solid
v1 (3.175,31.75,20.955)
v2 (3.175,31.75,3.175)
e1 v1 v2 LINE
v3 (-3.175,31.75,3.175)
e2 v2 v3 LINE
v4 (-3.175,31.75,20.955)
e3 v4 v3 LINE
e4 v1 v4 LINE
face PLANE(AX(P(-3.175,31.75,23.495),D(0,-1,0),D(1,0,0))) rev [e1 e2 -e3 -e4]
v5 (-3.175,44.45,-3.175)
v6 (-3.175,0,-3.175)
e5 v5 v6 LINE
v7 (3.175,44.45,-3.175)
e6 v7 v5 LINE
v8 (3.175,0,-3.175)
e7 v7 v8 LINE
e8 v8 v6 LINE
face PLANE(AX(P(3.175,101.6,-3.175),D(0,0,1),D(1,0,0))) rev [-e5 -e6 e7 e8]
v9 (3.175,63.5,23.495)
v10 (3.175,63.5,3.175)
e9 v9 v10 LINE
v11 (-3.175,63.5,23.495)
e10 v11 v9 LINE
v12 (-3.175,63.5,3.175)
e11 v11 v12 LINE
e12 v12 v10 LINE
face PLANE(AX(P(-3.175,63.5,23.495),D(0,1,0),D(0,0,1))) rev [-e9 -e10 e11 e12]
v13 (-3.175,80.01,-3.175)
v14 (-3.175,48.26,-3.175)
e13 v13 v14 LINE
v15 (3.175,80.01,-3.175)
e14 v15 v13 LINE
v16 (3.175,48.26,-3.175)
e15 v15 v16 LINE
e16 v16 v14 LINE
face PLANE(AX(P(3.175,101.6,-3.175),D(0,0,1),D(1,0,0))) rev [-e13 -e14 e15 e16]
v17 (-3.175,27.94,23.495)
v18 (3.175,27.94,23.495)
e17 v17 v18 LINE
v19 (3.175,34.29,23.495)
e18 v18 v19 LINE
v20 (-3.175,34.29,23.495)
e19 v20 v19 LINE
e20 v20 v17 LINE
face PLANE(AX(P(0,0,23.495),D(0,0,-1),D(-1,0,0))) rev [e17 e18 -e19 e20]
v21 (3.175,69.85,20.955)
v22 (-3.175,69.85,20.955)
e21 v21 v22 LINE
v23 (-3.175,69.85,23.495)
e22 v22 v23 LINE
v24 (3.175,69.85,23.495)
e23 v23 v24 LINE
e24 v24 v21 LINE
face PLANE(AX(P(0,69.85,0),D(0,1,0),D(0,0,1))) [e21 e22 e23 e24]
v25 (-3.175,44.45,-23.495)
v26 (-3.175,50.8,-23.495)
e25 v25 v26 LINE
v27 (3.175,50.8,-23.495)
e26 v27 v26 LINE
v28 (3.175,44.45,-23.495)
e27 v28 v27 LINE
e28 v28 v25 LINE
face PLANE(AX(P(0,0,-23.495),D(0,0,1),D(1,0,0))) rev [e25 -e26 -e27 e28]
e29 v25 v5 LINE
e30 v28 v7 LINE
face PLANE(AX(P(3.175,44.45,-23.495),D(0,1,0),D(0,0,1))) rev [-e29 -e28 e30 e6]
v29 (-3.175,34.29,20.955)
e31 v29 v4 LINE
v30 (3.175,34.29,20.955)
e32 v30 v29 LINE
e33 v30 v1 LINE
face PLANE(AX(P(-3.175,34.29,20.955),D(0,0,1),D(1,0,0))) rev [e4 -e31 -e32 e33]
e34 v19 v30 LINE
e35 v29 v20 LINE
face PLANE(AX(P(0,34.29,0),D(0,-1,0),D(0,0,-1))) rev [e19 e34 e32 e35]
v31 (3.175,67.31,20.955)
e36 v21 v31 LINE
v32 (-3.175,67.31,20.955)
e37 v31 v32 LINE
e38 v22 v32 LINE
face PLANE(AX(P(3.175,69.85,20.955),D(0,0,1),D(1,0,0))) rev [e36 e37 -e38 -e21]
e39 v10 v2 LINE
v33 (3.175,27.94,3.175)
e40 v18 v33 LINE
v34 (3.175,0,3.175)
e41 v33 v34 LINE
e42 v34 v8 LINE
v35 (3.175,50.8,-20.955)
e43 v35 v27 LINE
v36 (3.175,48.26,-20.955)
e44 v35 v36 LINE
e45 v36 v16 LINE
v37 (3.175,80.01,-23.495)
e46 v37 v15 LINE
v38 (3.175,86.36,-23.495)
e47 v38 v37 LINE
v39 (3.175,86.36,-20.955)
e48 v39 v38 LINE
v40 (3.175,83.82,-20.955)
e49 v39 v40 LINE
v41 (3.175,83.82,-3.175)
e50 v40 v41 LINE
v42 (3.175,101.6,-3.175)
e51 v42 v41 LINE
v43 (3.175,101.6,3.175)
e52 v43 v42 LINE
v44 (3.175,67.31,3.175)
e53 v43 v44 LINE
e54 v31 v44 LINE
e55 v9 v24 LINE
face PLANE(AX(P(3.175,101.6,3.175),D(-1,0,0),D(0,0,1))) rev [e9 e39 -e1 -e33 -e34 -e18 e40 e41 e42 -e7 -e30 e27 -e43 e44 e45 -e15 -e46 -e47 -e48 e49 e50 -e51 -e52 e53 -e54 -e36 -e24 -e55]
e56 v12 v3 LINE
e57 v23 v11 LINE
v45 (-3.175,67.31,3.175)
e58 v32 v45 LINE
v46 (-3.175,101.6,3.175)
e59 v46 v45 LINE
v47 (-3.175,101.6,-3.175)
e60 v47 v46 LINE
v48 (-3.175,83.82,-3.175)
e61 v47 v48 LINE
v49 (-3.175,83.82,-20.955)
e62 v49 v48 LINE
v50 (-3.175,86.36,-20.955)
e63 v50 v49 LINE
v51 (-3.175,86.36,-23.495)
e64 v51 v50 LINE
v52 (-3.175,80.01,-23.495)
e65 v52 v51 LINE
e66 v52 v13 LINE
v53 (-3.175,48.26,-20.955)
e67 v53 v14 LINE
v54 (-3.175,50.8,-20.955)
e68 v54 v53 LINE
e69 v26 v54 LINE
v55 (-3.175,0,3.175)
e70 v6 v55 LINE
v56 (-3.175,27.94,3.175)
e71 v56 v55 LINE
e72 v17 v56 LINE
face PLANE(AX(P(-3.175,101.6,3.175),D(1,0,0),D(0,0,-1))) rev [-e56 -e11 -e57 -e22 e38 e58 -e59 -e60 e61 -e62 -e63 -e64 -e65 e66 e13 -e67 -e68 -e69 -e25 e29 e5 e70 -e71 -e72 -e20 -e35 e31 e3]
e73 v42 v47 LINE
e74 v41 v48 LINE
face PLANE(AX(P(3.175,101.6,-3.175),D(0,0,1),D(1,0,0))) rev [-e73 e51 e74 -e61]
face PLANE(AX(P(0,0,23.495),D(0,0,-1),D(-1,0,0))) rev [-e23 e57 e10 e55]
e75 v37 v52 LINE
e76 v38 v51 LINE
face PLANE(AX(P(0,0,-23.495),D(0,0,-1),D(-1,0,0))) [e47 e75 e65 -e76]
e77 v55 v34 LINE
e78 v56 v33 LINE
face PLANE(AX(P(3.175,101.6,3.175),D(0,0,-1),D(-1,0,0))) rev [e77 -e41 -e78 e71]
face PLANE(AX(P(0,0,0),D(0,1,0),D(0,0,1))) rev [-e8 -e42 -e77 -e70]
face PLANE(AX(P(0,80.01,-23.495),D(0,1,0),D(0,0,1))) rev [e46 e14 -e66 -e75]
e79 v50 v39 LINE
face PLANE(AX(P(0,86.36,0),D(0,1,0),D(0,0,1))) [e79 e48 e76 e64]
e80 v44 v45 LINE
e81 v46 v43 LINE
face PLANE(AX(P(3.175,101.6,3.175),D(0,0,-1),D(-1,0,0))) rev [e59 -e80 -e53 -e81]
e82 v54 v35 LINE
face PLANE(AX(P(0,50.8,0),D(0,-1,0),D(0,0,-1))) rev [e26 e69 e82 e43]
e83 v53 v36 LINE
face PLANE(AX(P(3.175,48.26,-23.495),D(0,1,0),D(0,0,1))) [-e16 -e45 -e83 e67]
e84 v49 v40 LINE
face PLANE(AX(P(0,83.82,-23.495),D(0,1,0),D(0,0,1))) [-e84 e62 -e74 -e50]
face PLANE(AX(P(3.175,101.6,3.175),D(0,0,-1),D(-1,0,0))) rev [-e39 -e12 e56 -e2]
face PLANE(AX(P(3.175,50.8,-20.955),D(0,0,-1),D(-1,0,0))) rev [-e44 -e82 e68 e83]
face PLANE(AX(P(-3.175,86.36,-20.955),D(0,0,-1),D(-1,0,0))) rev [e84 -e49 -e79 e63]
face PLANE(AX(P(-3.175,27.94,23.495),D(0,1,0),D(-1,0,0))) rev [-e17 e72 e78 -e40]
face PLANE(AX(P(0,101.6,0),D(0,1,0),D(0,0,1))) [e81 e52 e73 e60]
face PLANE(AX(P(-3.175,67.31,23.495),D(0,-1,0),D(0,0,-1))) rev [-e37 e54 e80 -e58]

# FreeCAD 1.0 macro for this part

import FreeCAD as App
import Part
import Sketcher

V = App.Vector
Q = App.Units.Quantity

doc = App.newDocument("Part")
body = doc.addObject("PartDesign::Body", "Body")

sketch1 = body.newObject("Sketcher::SketchObject", "Sketch")
sketch1.AttachmentSupport = (doc.getObject("XZ_Plane"), [""])
sketch1.MapMode = "FlatFace"
sketch1.addGeometry(Part.LineSegment(V(-3, -3, 0), V(-3, 3, 0)), False)
sketch1.addGeometry(Part.LineSegment(V(-3, 3, 0), V(3, 3, 0)), False)
sketch1.addGeometry(Part.LineSegment(V(3, 3, 0), V(3, -3, 0)), False)
sketch1.addGeometry(Part.LineSegment(V(3, -3, 0), V(-3, -3, 0)), False)
sketch1.addConstraint(Sketcher.Constraint("Coincident", 0, 2, 1, 1))
sketch1.addConstraint(Sketcher.Constraint("Coincident", 1, 2, 2, 1))
sketch1.addConstraint(Sketcher.Constraint("Coincident", 2, 2, 3, 1))
sketch1.addConstraint(Sketcher.Constraint("Coincident", 3, 2, 0, 1))
sketch1.addConstraint(Sketcher.Constraint("Vertical", 0))
sketch1.addConstraint(Sketcher.Constraint("Horizontal", 1))
sketch1.addConstraint(Sketcher.Constraint("Vertical", 2))
sketch1.addConstraint(Sketcher.Constraint("Horizontal", 3))
sketch1.addConstraint(Sketcher.Constraint("Symmetric", 0, 2, 2, 2, -1, 1))
sketch1.addConstraint(Sketcher.Constraint("Equal", 3, 0))
sketch1.addConstraint(Sketcher.Constraint("DistanceX", 1, 1, 1, 2, Q("0.25 in")))
pad1 = body.newObject("PartDesign::Pad", "Pad")
pad1.Profile = sketch1
pad1.Length = Q("4 in")
pad1.Reversed = True

sketch2 = body.newObject("Sketcher::SketchObject", "Sketch001")
sketch2.AttachmentSupport = (doc.getObject("XY_Plane"), [""])
sketch2.MapMode = "FlatFace"
sketch2.AttachmentOffset = App.Placement(V(0, 0, 0.125 * 25.4), App.Rotation())
sketch2.addGeometry(Part.LineSegment(V(-3.2, 31.8, 0), V(-3.2, 27.9, 0)), False)
sketch2.addGeometry(Part.LineSegment(V(-3.2, 27.9, 0), V(3.2, 27.9, 0)), False)
sketch2.addGeometry(Part.LineSegment(V(3.2, 27.9, 0), V(3.2, 31.8, 0)), False)
sketch2.addGeometry(Part.LineSegment(V(3.2, 31.8, 0), V(-3.2, 31.8, 0)), False)
sketch2.addGeometry(Part.LineSegment(V(-3.2, 67.3, 0), V(-3.2, 63.5, 0)), False)
sketch2.addGeometry(Part.LineSegment(V(-3.2, 63.5, 0), V(3.2, 63.5, 0)), False)
sketch2.addGeometry(Part.LineSegment(V(3.2, 63.5, 0), V(3.2, 67.3, 0)), False)
sketch2.addGeometry(Part.LineSegment(V(3.2, 67.3, 0), V(-3.2, 67.3, 0)), False)
sketch2.addConstraint(Sketcher.Constraint("Coincident", 0, 2, 1, 1))
sketch2.addConstraint(Sketcher.Constraint("Coincident", 1, 2, 2, 1))
sketch2.addConstraint(Sketcher.Constraint("Coincident", 2, 2, 3, 1))
sketch2.addConstraint(Sketcher.Constraint("Coincident", 3, 2, 0, 1))
sketch2.addConstraint(Sketcher.Constraint("Coincident", 4, 2, 5, 1))
sketch2.addConstraint(Sketcher.Constraint("Coincident", 5, 2, 6, 1))
sketch2.addConstraint(Sketcher.Constraint("Coincident", 6, 2, 7, 1))
sketch2.addConstraint(Sketcher.Constraint("Coincident", 7, 2, 4, 1))
sketch2.addConstraint(Sketcher.Constraint("Vertical", 0))
sketch2.addConstraint(Sketcher.Constraint("Horizontal", 1))
sketch2.addConstraint(Sketcher.Constraint("Vertical", 2))
sketch2.addConstraint(Sketcher.Constraint("Horizontal", 3))
sketch2.addConstraint(Sketcher.Constraint("Vertical", 4))
sketch2.addConstraint(Sketcher.Constraint("Horizontal", 5))
sketch2.addConstraint(Sketcher.Constraint("Vertical", 6))
sketch2.addConstraint(Sketcher.Constraint("Horizontal", 7))
sketch2.addConstraint(Sketcher.Constraint("Vertical", 3, 2, 4, 2))
sketch2.addConstraint(Sketcher.Constraint("Vertical", 2, 2, 5, 2))
sketch2.addConstraint(Sketcher.Constraint("Equal", 2, 4))
sketch2.addConstraint(Sketcher.Constraint("DistanceX", 1, 1, 1, 2, Q("0.25 in")))
sketch2.addConstraint(Sketcher.Constraint("DistanceY", 0, 2, 0, 1, Q("0.15 in")))
sketch2.addConstraint(Sketcher.Constraint("DistanceY", -1, 1, 0, 2, Q("1.1 in")))
sketch2.addConstraint(Sketcher.Constraint("DistanceY", -1, 1, 4, 2, Q("2.5 in")))
sketch2.addConstraint(Sketcher.Constraint("DistanceX", 0, 2, -1, 1, Q("0.125 in")))
pad2 = body.newObject("PartDesign::Pad", "Pad001")
pad2.Profile = sketch2
pad2.Length = Q("0.8 in")

sketch3 = body.newObject("Sketcher::SketchObject", "Sketch002")
sketch3.AttachmentSupport = (doc.getObject("XZ_Plane"), [""])
sketch3.MapMode = "FlatFace"
sketch3.AttachmentOffset = App.Placement(V(0, 0, -1.25 * 25.4), App.Rotation())
sketch3.addGeometry(Part.LineSegment(V(-3.2, 21, 0), V(-3.2, 23.5, 0)), False)
sketch3.addGeometry(Part.LineSegment(V(-3.2, 23.5, 0), V(3.2, 23.5, 0)), False)
sketch3.addGeometry(Part.LineSegment(V(3.2, 23.5, 0), V(3.2, 21, 0)), False)
sketch3.addGeometry(Part.LineSegment(V(3.2, 21, 0), V(-3.2, 21, 0)), False)
sketch3.addConstraint(Sketcher.Constraint("Coincident", 0, 2, 1, 1))
sketch3.addConstraint(Sketcher.Constraint("Coincident", 1, 2, 2, 1))
sketch3.addConstraint(Sketcher.Constraint("Coincident", 2, 2, 3, 1))
sketch3.addConstraint(Sketcher.Constraint("Coincident", 3, 2, 0, 1))
sketch3.addConstraint(Sketcher.Constraint("Vertical", 0))
sketch3.addConstraint(Sketcher.Constraint("Horizontal", 1))
sketch3.addConstraint(Sketcher.Constraint("Vertical", 2))
sketch3.addConstraint(Sketcher.Constraint("Horizontal", 3))
sketch3.addConstraint(Sketcher.Constraint("DistanceY", 0, 1, 0, 2, Q("0.1 in")))
sketch3.addConstraint(Sketcher.Constraint("DistanceX", 1, 1, 1, 2, Q("0.25 in")))
sketch3.addConstraint(Sketcher.Constraint("DistanceX", 0, 2, -1, 1, Q("0.125 in")))
sketch3.addConstraint(Sketcher.Constraint("DistanceY", -1, 1, 0, 2, Q("0.925 in")))
pad3 = body.newObject("PartDesign::Pad", "Pad002")
pad3.Profile = sketch3
pad3.Length = Q("0.1 in")
pad3.Reversed = True

sketch4 = body.newObject("Sketcher::SketchObject", "Sketch003")
sketch4.AttachmentSupport = (doc.getObject("XY_Plane"), [""])
sketch4.MapMode = "FlatFace"
sketch4.AttachmentOffset = App.Placement(V(0, 0, -0.125 * 25.4), App.Rotation())
sketch4.addGeometry(Part.LineSegment(V(3.2, 83.8, 0), V(3.2, 80, 0)), False)
sketch4.addGeometry(Part.LineSegment(V(3.2, 80, 0), V(-3.2, 80, 0)), False)
sketch4.addGeometry(Part.LineSegment(V(-3.2, 80, 0), V(-3.2, 83.8, 0)), False)
sketch4.addGeometry(Part.LineSegment(V(-3.2, 83.8, 0), V(3.2, 83.8, 0)), False)
sketch4.addGeometry(Part.LineSegment(V(3.2, 48.3, 0), V(3.2, 44.5, 0)), False)
sketch4.addGeometry(Part.LineSegment(V(3.2, 44.5, 0), V(-3.2, 44.5, 0)), False)
sketch4.addGeometry(Part.LineSegment(V(-3.2, 44.5, 0), V(-3.2, 48.3, 0)), False)
sketch4.addGeometry(Part.LineSegment(V(-3.2, 48.3, 0), V(3.2, 48.3, 0)), False)
sketch4.addConstraint(Sketcher.Constraint("Coincident", 0, 2, 1, 1))
sketch4.addConstraint(Sketcher.Constraint("Coincident", 1, 2, 2, 1))
sketch4.addConstraint(Sketcher.Constraint("Coincident", 2, 2, 3, 1))
sketch4.addConstraint(Sketcher.Constraint("Coincident", 3, 2, 0, 1))
sketch4.addConstraint(Sketcher.Constraint("Coincident", 4, 2, 5, 1))
sketch4.addConstraint(Sketcher.Constraint("Coincident", 5, 2, 6, 1))
sketch4.addConstraint(Sketcher.Constraint("Coincident", 6, 2, 7, 1))
sketch4.addConstraint(Sketcher.Constraint("Coincident", 7, 2, 4, 1))
sketch4.addConstraint(Sketcher.Constraint("Vertical", 0))
sketch4.addConstraint(Sketcher.Constraint("Horizontal", 1))
sketch4.addConstraint(Sketcher.Constraint("Vertical", 2))
sketch4.addConstraint(Sketcher.Constraint("Horizontal", 3))
sketch4.addConstraint(Sketcher.Constraint("Vertical", 4))
sketch4.addConstraint(Sketcher.Constraint("Horizontal", 5))
sketch4.addConstraint(Sketcher.Constraint("Vertical", 6))
sketch4.addConstraint(Sketcher.Constraint("Horizontal", 7))
sketch4.addConstraint(Sketcher.Constraint("Vertical", 3, 2, 4, 2))
sketch4.addConstraint(Sketcher.Constraint("Vertical", 2, 2, 5, 2))
sketch4.addConstraint(Sketcher.Constraint("Equal", 2, 4))
sketch4.addConstraint(Sketcher.Constraint("DistanceX", 1, 2, 1, 1, Q("0.25 in")))
sketch4.addConstraint(Sketcher.Constraint("DistanceY", 0, 2, 0, 1, Q("0.15 in")))
sketch4.addConstraint(Sketcher.Constraint("DistanceY", -1, 1, 2, 2, Q("3.3 in")))
sketch4.addConstraint(Sketcher.Constraint("DistanceY", -1, 1, 6, 2, Q("1.9 in")))
sketch4.addConstraint(Sketcher.Constraint("DistanceX", -1, 1, 0, 2, Q("0.125 in")))
pad4 = body.newObject("PartDesign::Pad", "Pad003")
pad4.Profile = sketch4
pad4.Length = Q("0.8 in")
pad4.Reversed = True

sketch5 = body.newObject("Sketcher::SketchObject", "Sketch004")
sketch5.AttachmentSupport = (doc.getObject("XZ_Plane"), [""])
sketch5.MapMode = "FlatFace"
sketch5.AttachmentOffset = App.Placement(V(0, 0, -1.9 * 25.4), App.Rotation())
sketch5.addGeometry(Part.LineSegment(V(-3.2, -23.5, 0), V(-3.2, -21, 0)), False)
sketch5.addGeometry(Part.LineSegment(V(-3.2, -21, 0), V(3.2, -21, 0)), False)
sketch5.addGeometry(Part.LineSegment(V(3.2, -21, 0), V(3.2, -23.5, 0)), False)
sketch5.addGeometry(Part.LineSegment(V(3.2, -23.5, 0), V(-3.2, -23.5, 0)), False)
sketch5.addConstraint(Sketcher.Constraint("Coincident", 0, 2, 1, 1))
sketch5.addConstraint(Sketcher.Constraint("Coincident", 1, 2, 2, 1))
sketch5.addConstraint(Sketcher.Constraint("Coincident", 2, 2, 3, 1))
sketch5.addConstraint(Sketcher.Constraint("Coincident", 3, 2, 0, 1))
sketch5.addConstraint(Sketcher.Constraint("Vertical", 0))
sketch5.addConstraint(Sketcher.Constraint("Horizontal", 1))
sketch5.addConstraint(Sketcher.Constraint("Vertical", 2))
sketch5.addConstraint(Sketcher.Constraint("Horizontal", 3))
sketch5.addConstraint(Sketcher.Constraint("DistanceY", 0, 1, 0, 2, Q("0.1 in")))
sketch5.addConstraint(Sketcher.Constraint("DistanceX", 1, 1, 1, 2, Q("0.25 in")))
sketch5.addConstraint(Sketcher.Constraint("DistanceX", 0, 2, -1, 1, Q("0.125 in")))
sketch5.addConstraint(Sketcher.Constraint("DistanceY", 0, 2, -1, 1, Q("0.825 in")))
pad5 = body.newObject("PartDesign::Pad", "Pad004")
pad5.Profile = sketch5
pad5.Length = Q("0.1 in")
pad5.Reversed = True

sketch6 = body.newObject("Sketcher::SketchObject", "Sketch005")
sketch6.AttachmentSupport = (doc.getObject("XZ_Plane"), [""])
sketch6.MapMode = "FlatFace"
sketch6.AttachmentOffset = App.Placement(V(0, 0, -3.3 * 25.4), App.Rotation())
sketch6.addGeometry(Part.LineSegment(V(-3.2, -23.5, 0), V(-3.2, -21, 0)), False)
sketch6.addGeometry(Part.LineSegment(V(-3.2, -21, 0), V(3.2, -21, 0)), False)
sketch6.addGeometry(Part.LineSegment(V(3.2, -21, 0), V(3.2, -23.5, 0)), False)
sketch6.addGeometry(Part.LineSegment(V(3.2, -23.5, 0), V(-3.2, -23.5, 0)), False)
sketch6.addConstraint(Sketcher.Constraint("Coincident", 0, 2, 1, 1))
sketch6.addConstraint(Sketcher.Constraint("Coincident", 1, 2, 2, 1))
sketch6.addConstraint(Sketcher.Constraint("Coincident", 2, 2, 3, 1))
sketch6.addConstraint(Sketcher.Constraint("Coincident", 3, 2, 0, 1))
sketch6.addConstraint(Sketcher.Constraint("Vertical", 0))
sketch6.addConstraint(Sketcher.Constraint("Horizontal", 1))
sketch6.addConstraint(Sketcher.Constraint("Vertical", 2))
sketch6.addConstraint(Sketcher.Constraint("Horizontal", 3))
sketch6.addConstraint(Sketcher.Constraint("DistanceY", 0, 1, 0, 2, Q("0.1 in")))
sketch6.addConstraint(Sketcher.Constraint("DistanceX", 1, 1, 1, 2, Q("0.25 in")))
sketch6.addConstraint(Sketcher.Constraint("DistanceX", 0, 2, -1, 1, Q("0.125 in")))
sketch6.addConstraint(Sketcher.Constraint("DistanceY", 0, 2, -1, 1, Q("0.825 in")))
pad6 = body.newObject("PartDesign::Pad", "Pad005")
pad6.Profile = sketch6
pad6.Length = Q("0.1 in")
pad6.Reversed = True

sketch7 = body.newObject("Sketcher::SketchObject", "Sketch006")
sketch7.AttachmentSupport = (doc.getObject("XZ_Plane"), [""])
sketch7.MapMode = "FlatFace"
sketch7.AttachmentOffset = App.Placement(V(0, 0, -2.65 * 25.4), App.Rotation())
sketch7.addGeometry(Part.LineSegment(V(-3.2, 21, 0), V(-3.2, 23.5, 0)), False)
sketch7.addGeometry(Part.LineSegment(V(-3.2, 23.5, 0), V(3.2, 23.5, 0)), False)
sketch7.addGeometry(Part.LineSegment(V(3.2, 23.5, 0), V(3.2, 21, 0)), False)
sketch7.addGeometry(Part.LineSegment(V(3.2, 21, 0), V(-3.2, 21, 0)), False)
sketch7.addConstraint(Sketcher.Constraint("Coincident", 0, 2, 1, 1))
sketch7.addConstraint(Sketcher.Constraint("Coincident", 1, 2, 2, 1))
sketch7.addConstraint(Sketcher.Constraint("Coincident", 2, 2, 3, 1))
sketch7.addConstraint(Sketcher.Constraint("Coincident", 3, 2, 0, 1))
sketch7.addConstraint(Sketcher.Constraint("Vertical", 0))
sketch7.addConstraint(Sketcher.Constraint("Horizontal", 1))
sketch7.addConstraint(Sketcher.Constraint("Vertical", 2))
sketch7.addConstraint(Sketcher.Constraint("Horizontal", 3))
sketch7.addConstraint(Sketcher.Constraint("DistanceY", 0, 1, 0, 2, Q("0.1 in")))
sketch7.addConstraint(Sketcher.Constraint("DistanceX", 1, 1, 1, 2, Q("0.25 in")))
sketch7.addConstraint(Sketcher.Constraint("DistanceX", 0, 2, -1, 1, Q("0.125 in")))
sketch7.addConstraint(Sketcher.Constraint("DistanceY", -1, 1, 0, 2, Q("0.925 in")))
pad7 = body.newObject("PartDesign::Pad", "Pad006")
pad7.Profile = sketch7
pad7.Length = Q("0.1 in")
pad7.Reversed = True

doc.recompute()
